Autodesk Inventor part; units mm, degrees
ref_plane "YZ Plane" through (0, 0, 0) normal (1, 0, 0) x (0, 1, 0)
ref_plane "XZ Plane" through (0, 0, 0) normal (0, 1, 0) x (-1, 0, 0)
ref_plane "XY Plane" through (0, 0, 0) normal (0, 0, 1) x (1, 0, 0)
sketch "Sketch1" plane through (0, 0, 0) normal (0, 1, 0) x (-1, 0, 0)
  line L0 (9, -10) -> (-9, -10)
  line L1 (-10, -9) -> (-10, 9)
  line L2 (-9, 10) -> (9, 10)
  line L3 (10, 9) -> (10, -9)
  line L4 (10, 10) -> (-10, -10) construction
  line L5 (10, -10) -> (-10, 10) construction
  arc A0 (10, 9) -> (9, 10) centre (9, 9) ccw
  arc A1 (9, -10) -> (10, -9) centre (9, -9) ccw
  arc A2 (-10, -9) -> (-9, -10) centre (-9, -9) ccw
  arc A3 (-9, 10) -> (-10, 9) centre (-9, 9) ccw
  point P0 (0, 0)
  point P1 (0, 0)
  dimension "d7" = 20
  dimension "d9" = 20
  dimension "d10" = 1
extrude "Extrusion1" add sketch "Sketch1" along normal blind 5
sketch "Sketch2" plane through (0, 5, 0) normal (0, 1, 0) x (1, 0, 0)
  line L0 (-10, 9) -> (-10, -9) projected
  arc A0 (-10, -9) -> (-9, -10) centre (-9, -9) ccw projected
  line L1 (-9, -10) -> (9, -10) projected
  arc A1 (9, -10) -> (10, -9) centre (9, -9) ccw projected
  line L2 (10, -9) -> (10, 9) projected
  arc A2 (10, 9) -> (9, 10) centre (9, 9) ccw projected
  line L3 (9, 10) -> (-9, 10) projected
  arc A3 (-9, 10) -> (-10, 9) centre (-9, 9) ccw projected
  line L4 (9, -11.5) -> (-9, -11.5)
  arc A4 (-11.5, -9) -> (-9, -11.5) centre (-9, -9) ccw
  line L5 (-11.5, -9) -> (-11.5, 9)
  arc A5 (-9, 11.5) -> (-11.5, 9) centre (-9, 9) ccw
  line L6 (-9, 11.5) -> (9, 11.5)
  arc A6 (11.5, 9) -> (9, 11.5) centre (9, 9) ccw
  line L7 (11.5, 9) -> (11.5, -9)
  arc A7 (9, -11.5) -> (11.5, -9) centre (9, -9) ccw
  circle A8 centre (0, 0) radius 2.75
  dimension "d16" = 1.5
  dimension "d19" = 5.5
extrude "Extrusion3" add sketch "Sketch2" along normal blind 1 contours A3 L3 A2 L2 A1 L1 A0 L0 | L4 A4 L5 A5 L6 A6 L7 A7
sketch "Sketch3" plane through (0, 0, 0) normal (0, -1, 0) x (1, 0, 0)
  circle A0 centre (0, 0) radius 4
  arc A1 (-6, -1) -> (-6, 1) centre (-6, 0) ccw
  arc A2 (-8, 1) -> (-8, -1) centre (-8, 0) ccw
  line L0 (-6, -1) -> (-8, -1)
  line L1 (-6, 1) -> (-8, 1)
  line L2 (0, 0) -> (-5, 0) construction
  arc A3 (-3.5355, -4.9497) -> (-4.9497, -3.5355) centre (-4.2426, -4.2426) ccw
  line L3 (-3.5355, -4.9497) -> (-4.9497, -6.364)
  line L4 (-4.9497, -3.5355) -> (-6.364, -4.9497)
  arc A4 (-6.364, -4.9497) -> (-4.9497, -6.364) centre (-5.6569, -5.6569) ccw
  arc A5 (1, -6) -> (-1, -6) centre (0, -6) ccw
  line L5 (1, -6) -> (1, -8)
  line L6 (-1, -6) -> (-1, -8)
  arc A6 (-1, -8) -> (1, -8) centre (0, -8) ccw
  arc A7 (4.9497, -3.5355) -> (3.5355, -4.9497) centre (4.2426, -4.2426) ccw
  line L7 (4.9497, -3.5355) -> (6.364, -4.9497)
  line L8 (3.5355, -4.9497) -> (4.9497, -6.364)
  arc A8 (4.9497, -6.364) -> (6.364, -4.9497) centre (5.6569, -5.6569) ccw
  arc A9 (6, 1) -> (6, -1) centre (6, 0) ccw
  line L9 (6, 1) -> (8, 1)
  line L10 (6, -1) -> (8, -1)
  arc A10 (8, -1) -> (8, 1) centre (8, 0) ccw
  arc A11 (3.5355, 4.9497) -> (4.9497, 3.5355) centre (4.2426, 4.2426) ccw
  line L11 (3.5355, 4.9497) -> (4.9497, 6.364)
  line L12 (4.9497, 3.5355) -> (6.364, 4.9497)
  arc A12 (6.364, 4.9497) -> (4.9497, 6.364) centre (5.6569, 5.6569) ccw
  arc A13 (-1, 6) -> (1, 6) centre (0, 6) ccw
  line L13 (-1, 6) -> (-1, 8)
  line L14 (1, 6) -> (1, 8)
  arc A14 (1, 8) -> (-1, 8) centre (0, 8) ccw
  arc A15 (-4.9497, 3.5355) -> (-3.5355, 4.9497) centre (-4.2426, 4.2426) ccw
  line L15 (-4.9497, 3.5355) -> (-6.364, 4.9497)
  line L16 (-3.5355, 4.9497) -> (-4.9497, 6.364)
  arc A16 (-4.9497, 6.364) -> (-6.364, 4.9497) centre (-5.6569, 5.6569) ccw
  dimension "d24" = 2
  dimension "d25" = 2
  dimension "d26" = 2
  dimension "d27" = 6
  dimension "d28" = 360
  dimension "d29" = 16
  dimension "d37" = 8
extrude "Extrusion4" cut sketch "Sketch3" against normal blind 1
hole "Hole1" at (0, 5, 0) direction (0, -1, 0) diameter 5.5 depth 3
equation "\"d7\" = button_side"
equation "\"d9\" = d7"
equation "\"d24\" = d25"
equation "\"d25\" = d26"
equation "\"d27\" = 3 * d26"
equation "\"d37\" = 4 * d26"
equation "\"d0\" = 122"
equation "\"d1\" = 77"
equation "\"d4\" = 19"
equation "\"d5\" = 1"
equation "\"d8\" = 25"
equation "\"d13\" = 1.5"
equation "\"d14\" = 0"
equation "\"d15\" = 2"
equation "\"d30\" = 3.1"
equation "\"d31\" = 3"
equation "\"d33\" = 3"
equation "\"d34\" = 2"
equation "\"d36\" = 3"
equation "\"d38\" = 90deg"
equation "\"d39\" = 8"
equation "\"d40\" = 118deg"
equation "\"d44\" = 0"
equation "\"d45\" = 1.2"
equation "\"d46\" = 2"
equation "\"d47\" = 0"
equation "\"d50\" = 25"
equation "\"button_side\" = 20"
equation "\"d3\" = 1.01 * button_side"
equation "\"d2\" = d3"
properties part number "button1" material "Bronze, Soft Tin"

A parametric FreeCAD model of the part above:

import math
import FreeCAD as App
import Part
import Sketcher

V = App.Vector

doc = App.newDocument("Part")
params = doc.addObject("Spreadsheet::Sheet", "Params")
for row, (alias, value) in enumerate([
    ("sketch1_radius", "1 mm"),
    ("sketch1_width", "18 mm"),
    ("pad1_length", "5 mm"),
    ("sketch2_diameter", "5.5 mm"),
    ("sketch2_radius", "2.5 mm"),
    ("sketch2_width", "18 mm"),
    ("pad2_length", "1 mm"),
    ("sketch3_diameter", "8 mm"),
    ("sketch3_radius", "1 mm"),
    ("sketch3_width", "2 mm"),
    ("pocket1_length", "1 mm"),
    ("sketch4_diameter", "5.5 mm"),
    ("hole_diameter", "5.5 mm"),
    ("hole_depth", "3 mm"),
], start=1):
    params.set(f"A{row}", alias)
    params.set(f"B{row}", "=" + value)
    params.setAlias(f"B{row}", alias)

body = doc.addObject("PartDesign::Body", "Body")

sketch1 = body.newObject("Sketcher::SketchObject", "Sketch")
sketch1.AttachmentSupport = (doc.getObject("XZ_Plane"), [""])
sketch1.MapMode = "FlatFace"
sketch1.addGeometry(Part.LineSegment(V(9, -10, 0), V(-9, -10, 0)), False)
sketch1.addGeometry(Part.ArcOfCircle(Part.Circle(V(-9, -9, 0), V(0, 0, 1), 1), math.radians(180), math.radians(270)), False)
sketch1.addGeometry(Part.LineSegment(V(-10, -9, 0), V(-10, 9, 0)), False)
sketch1.addGeometry(Part.ArcOfCircle(Part.Circle(V(-9, 9, 0), V(0, 0, 1), 1), math.radians(90), math.radians(180)), False)
sketch1.addGeometry(Part.LineSegment(V(-9, 10, 0), V(9, 10, 0)), False)
sketch1.addGeometry(Part.ArcOfCircle(Part.Circle(V(9, 9, 0), V(0, 0, 1), 1), math.radians(0), math.radians(90)), False)
sketch1.addGeometry(Part.LineSegment(V(10, 9, 0), V(10, -9, 0)), False)
sketch1.addGeometry(Part.ArcOfCircle(Part.Circle(V(9, -9, 0), V(0, 0, 1), 1), math.radians(-90), math.radians(0)), False)
sketch1.addConstraint(Sketcher.Constraint("Tangent", 0, 2, 1, 2))
sketch1.addConstraint(Sketcher.Constraint("Tangent", 1, 1, 2, 1))
sketch1.addConstraint(Sketcher.Constraint("Tangent", 2, 2, 3, 2))
sketch1.addConstraint(Sketcher.Constraint("Tangent", 3, 1, 4, 1))
sketch1.addConstraint(Sketcher.Constraint("Tangent", 4, 2, 5, 2))
sketch1.addConstraint(Sketcher.Constraint("Tangent", 5, 1, 6, 1))
sketch1.addConstraint(Sketcher.Constraint("Tangent", 6, 2, 7, 2))
sketch1.addConstraint(Sketcher.Constraint("Tangent", 7, 1, 0, 1))
sketch1.addConstraint(Sketcher.Constraint("Horizontal", 0))
sketch1.addConstraint(Sketcher.Constraint("Vertical", 2))
sketch1.addConstraint(Sketcher.Constraint("Horizontal", 4))
sketch1.addConstraint(Sketcher.Constraint("Vertical", 6))
sketch1.addConstraint(Sketcher.Constraint("Equal", 1, 3))
sketch1.addConstraint(Sketcher.Constraint("Equal", 3, 5))
sketch1.addConstraint(Sketcher.Constraint("Equal", 5, 7))
sketch1.addConstraint(Sketcher.Constraint("Symmetric", 1, 3, 5, 3, -1, 1))
sketch1.addConstraint(Sketcher.Constraint("Equal", 4, 2))
sketch1.addConstraint(Sketcher.Constraint("Radius", 1, 1.0))
sketch1.addConstraint(Sketcher.Constraint("DistanceX", 0, 2, 0, 1, 18.0))
sketch1.setExpression("Constraints[17]", "Params.sketch1_radius")
sketch1.setExpression("Constraints[18]", "Params.sketch1_width")
pad1 = body.newObject("PartDesign::Pad", "Pad")
pad1.Profile = sketch1
pad1.setExpression("Length", "Params.pad1_length")
pad1.Reversed = True

sketch2 = body.newObject("Sketcher::SketchObject", "Sketch001")
sketch2.AttachmentSupport = (doc.getObject("XZ_Plane"), [""])
sketch2.MapMode = "FlatFace"
sketch2.AttachmentOffset = App.Placement(V(0, 0, -5), App.Rotation())
sketch2.addGeometry(Part.LineSegment(V(-9, 11.5, 0), V(9, 11.5, 0)), False)
sketch2.addGeometry(Part.ArcOfCircle(Part.Circle(V(9, 9, 0), V(0, 0, 1), 2.5), math.radians(0), math.radians(90)), False)
sketch2.addGeometry(Part.LineSegment(V(11.5, 9, 0), V(11.5, -9, 0)), False)
sketch2.addGeometry(Part.ArcOfCircle(Part.Circle(V(9, -9, 0), V(0, 0, 1), 2.5), math.radians(-90), math.radians(0)), False)
sketch2.addGeometry(Part.LineSegment(V(9, -11.5, 0), V(-9, -11.5, 0)), False)
sketch2.addGeometry(Part.ArcOfCircle(Part.Circle(V(-9, -9, 0), V(0, 0, 1), 2.5), math.radians(180), math.radians(270)), False)
sketch2.addGeometry(Part.LineSegment(V(-11.5, -9, 0), V(-11.5, 9, 0)), False)
sketch2.addGeometry(Part.ArcOfCircle(Part.Circle(V(-9, 9, 0), V(0, 0, 1), 2.5), math.radians(90), math.radians(180)), False)
sketch2.addGeometry(Part.Circle(V(0, 0, 0), V(0, 0, 1), 2.75), False)
sketch2.addConstraint(Sketcher.Constraint("Tangent", 0, 2, 1, 2))
sketch2.addConstraint(Sketcher.Constraint("Tangent", 1, 1, 2, 1))
sketch2.addConstraint(Sketcher.Constraint("Tangent", 2, 2, 3, 2))
sketch2.addConstraint(Sketcher.Constraint("Tangent", 3, 1, 4, 1))
sketch2.addConstraint(Sketcher.Constraint("Tangent", 4, 2, 5, 2))
sketch2.addConstraint(Sketcher.Constraint("Tangent", 5, 1, 6, 1))
sketch2.addConstraint(Sketcher.Constraint("Tangent", 6, 2, 7, 2))
sketch2.addConstraint(Sketcher.Constraint("Tangent", 7, 1, 0, 1))
sketch2.addConstraint(Sketcher.Constraint("Horizontal", 0))
sketch2.addConstraint(Sketcher.Constraint("Vertical", 2))
sketch2.addConstraint(Sketcher.Constraint("Horizontal", 4))
sketch2.addConstraint(Sketcher.Constraint("Vertical", 6))
sketch2.addConstraint(Sketcher.Constraint("Coincident", 8, 3, -1, 1))
sketch2.addConstraint(Sketcher.Constraint("Equal", 1, 3))
sketch2.addConstraint(Sketcher.Constraint("Equal", 3, 5))
sketch2.addConstraint(Sketcher.Constraint("Equal", 5, 7))
sketch2.addConstraint(Sketcher.Constraint("Symmetric", 1, 3, 5, 3, -1, 1))
sketch2.addConstraint(Sketcher.Constraint("Equal", 4, 2))
sketch2.addConstraint(Sketcher.Constraint("Diameter", 8, 5.5))
sketch2.addConstraint(Sketcher.Constraint("Radius", 1, 2.5))
sketch2.addConstraint(Sketcher.Constraint("DistanceX", 0, 1, 0, 2, 18.0))
sketch2.setExpression("Constraints[18]", "Params.sketch2_diameter")
sketch2.setExpression("Constraints[19]", "Params.sketch2_radius")
sketch2.setExpression("Constraints[20]", "Params.sketch2_width")
pad2 = body.newObject("PartDesign::Pad", "Pad001")
pad2.Profile = sketch2
pad2.setExpression("Length", "Params.pad2_length")
pad2.Reversed = True

sketch3 = body.newObject("Sketcher::SketchObject", "Sketch002")
sketch3.AttachmentSupport = (doc.getObject("XZ_Plane"), [""])
sketch3.MapMode = "FlatFace"
sketch3.addGeometry(Part.Circle(V(0, 0, 0), V(0, 0, 1), 4), False)
sketch3.addGeometry(Part.LineSegment(V(-8, -1, 0), V(-6, -1, 0)), False)
sketch3.addGeometry(Part.ArcOfCircle(Part.Circle(V(-6, 0, 0), V(0, 0, 1), 1), math.radians(-90), math.radians(90)), False)
sketch3.addGeometry(Part.LineSegment(V(-6, 1, 0), V(-8, 1, 0)), False)
sketch3.addGeometry(Part.ArcOfCircle(Part.Circle(V(-8, 0, 0), V(0, 0, 1), 1), math.radians(90), math.radians(270)), False)
sketch3.addGeometry(Part.LineSegment(V(-4.9497, -6.364, 0), V(-3.5355, -4.9497, 0)), False)
sketch3.addGeometry(Part.ArcOfCircle(Part.Circle(V(-4.2426, -4.2426, 0), V(0, 0, 1), 0.99999), math.radians(-45), math.radians(135)), False)
sketch3.addGeometry(Part.LineSegment(V(-4.9497, -3.5355, 0), V(-6.364, -4.9497, 0)), False)
sketch3.addGeometry(Part.ArcOfCircle(Part.Circle(V(-5.6569, -5.6569, 0), V(0, 0, 1), 1.000061), math.radians(134.995949), math.radians(315.004051)), False)
sketch3.addGeometry(Part.LineSegment(V(1, -8, 0), V(1, -6, 0)), False)
sketch3.addGeometry(Part.ArcOfCircle(Part.Circle(V(0, -6, 0), V(0, 0, 1), 1), math.radians(0), math.radians(180)), False)
sketch3.addGeometry(Part.LineSegment(V(-1, -6, 0), V(-1, -8, 0)), False)
sketch3.addGeometry(Part.ArcOfCircle(Part.Circle(V(0, -8, 0), V(0, 0, 1), 1), math.radians(180), math.radians(360)), False)
sketch3.addGeometry(Part.LineSegment(V(6.364, -4.9497, 0), V(4.9497, -3.5355, 0)), False)
sketch3.addGeometry(Part.ArcOfCircle(Part.Circle(V(4.2426, -4.2426, 0), V(0, 0, 1), 0.99999), math.radians(45), math.radians(225)), False)
sketch3.addGeometry(Part.LineSegment(V(3.5355, -4.9497, 0), V(4.9497, -6.364, 0)), False)
sketch3.addGeometry(Part.ArcOfCircle(Part.Circle(V(5.6569, -5.6569, 0), V(0, 0, 1), 1.000061), math.radians(-135.004051), math.radians(45.004051)), False)
sketch3.addGeometry(Part.LineSegment(V(8, 1, 0), V(6, 1, 0)), False)
sketch3.addGeometry(Part.ArcOfCircle(Part.Circle(V(6, 0, 0), V(0, 0, 1), 1), math.radians(90), math.radians(270)), False)
sketch3.addGeometry(Part.LineSegment(V(6, -1, 0), V(8, -1, 0)), False)
sketch3.addGeometry(Part.ArcOfCircle(Part.Circle(V(8, 0, 0), V(0, 0, 1), 1), math.radians(-90), math.radians(90)), False)
sketch3.addGeometry(Part.LineSegment(V(4.9497, 6.364, 0), V(3.5355, 4.9497, 0)), False)
sketch3.addGeometry(Part.ArcOfCircle(Part.Circle(V(4.2426, 4.2426, 0), V(0, 0, 1), 0.99999), math.radians(135), math.radians(315)), False)
sketch3.addGeometry(Part.LineSegment(V(4.9497, 3.5355, 0), V(6.364, 4.9497, 0)), False)
sketch3.addGeometry(Part.ArcOfCircle(Part.Circle(V(5.6569, 5.6569, 0), V(0, 0, 1), 1.000061), math.radians(-45.004051), math.radians(135.004051)), False)
sketch3.addGeometry(Part.LineSegment(V(-1, 8, 0), V(-1, 6, 0)), False)
sketch3.addGeometry(Part.ArcOfCircle(Part.Circle(V(0, 6, 0), V(0, 0, 1), 1), math.radians(180), math.radians(360)), False)
sketch3.addGeometry(Part.LineSegment(V(1, 6, 0), V(1, 8, 0)), False)
sketch3.addGeometry(Part.ArcOfCircle(Part.Circle(V(0, 8, 0), V(0, 0, 1), 1), math.radians(0), math.radians(180)), False)
sketch3.addGeometry(Part.LineSegment(V(-6.364, 4.9497, 0), V(-4.9497, 3.5355, 0)), False)
sketch3.addGeometry(Part.ArcOfCircle(Part.Circle(V(-4.2426, 4.2426, 0), V(0, 0, 1), 0.99999), math.radians(-135), math.radians(45)), False)
sketch3.addGeometry(Part.LineSegment(V(-3.5355, 4.9497, 0), V(-4.9497, 6.364, 0)), False)
sketch3.addGeometry(Part.ArcOfCircle(Part.Circle(V(-5.6569, 5.6569, 0), V(0, 0, 1), 1.000061), math.radians(44.995949), math.radians(225.004051)), False)
sketch3.addConstraint(Sketcher.Constraint("Tangent", 1, 2, 2, 1))
sketch3.addConstraint(Sketcher.Constraint("Tangent", 2, 2, 3, 1))
sketch3.addConstraint(Sketcher.Constraint("Tangent", 3, 2, 4, 1))
sketch3.addConstraint(Sketcher.Constraint("Tangent", 4, 2, 1, 1))
sketch3.addConstraint(Sketcher.Constraint("Tangent", 5, 2, 6, 1))
sketch3.addConstraint(Sketcher.Constraint("Tangent", 6, 2, 7, 1))
sketch3.addConstraint(Sketcher.Constraint("Tangent", 7, 2, 8, 1))
sketch3.addConstraint(Sketcher.Constraint("Tangent", 8, 2, 5, 1))
sketch3.addConstraint(Sketcher.Constraint("Tangent", 9, 2, 10, 1))
sketch3.addConstraint(Sketcher.Constraint("Tangent", 10, 2, 11, 1))
sketch3.addConstraint(Sketcher.Constraint("Tangent", 11, 2, 12, 1))
sketch3.addConstraint(Sketcher.Constraint("Tangent", 12, 2, 9, 1))
sketch3.addConstraint(Sketcher.Constraint("Tangent", 13, 2, 14, 1))
sketch3.addConstraint(Sketcher.Constraint("Tangent", 14, 2, 15, 1))
sketch3.addConstraint(Sketcher.Constraint("Tangent", 15, 2, 16, 1))
sketch3.addConstraint(Sketcher.Constraint("Tangent", 16, 2, 13, 1))
sketch3.addConstraint(Sketcher.Constraint("Tangent", 17, 2, 18, 1))
sketch3.addConstraint(Sketcher.Constraint("Tangent", 18, 2, 19, 1))
sketch3.addConstraint(Sketcher.Constraint("Tangent", 19, 2, 20, 1))
sketch3.addConstraint(Sketcher.Constraint("Tangent", 20, 2, 17, 1))
sketch3.addConstraint(Sketcher.Constraint("Tangent", 21, 2, 22, 1))
sketch3.addConstraint(Sketcher.Constraint("Tangent", 22, 2, 23, 1))
sketch3.addConstraint(Sketcher.Constraint("Tangent", 23, 2, 24, 1))
sketch3.addConstraint(Sketcher.Constraint("Tangent", 24, 2, 21, 1))
sketch3.addConstraint(Sketcher.Constraint("Tangent", 25, 2, 26, 1))
sketch3.addConstraint(Sketcher.Constraint("Tangent", 26, 2, 27, 1))
sketch3.addConstraint(Sketcher.Constraint("Tangent", 27, 2, 28, 1))
sketch3.addConstraint(Sketcher.Constraint("Tangent", 28, 2, 25, 1))
sketch3.addConstraint(Sketcher.Constraint("Tangent", 29, 2, 30, 1))
sketch3.addConstraint(Sketcher.Constraint("Tangent", 30, 2, 31, 1))
sketch3.addConstraint(Sketcher.Constraint("Tangent", 31, 2, 32, 1))
sketch3.addConstraint(Sketcher.Constraint("Tangent", 32, 2, 29, 1))
sketch3.addConstraint(Sketcher.Constraint("Horizontal", 1))
sketch3.addConstraint(Sketcher.Constraint("Horizontal", 3))
sketch3.addConstraint(Sketcher.Constraint("Vertical", 9))
sketch3.addConstraint(Sketcher.Constraint("Vertical", 11))
sketch3.addConstraint(Sketcher.Constraint("Horizontal", 17))
sketch3.addConstraint(Sketcher.Constraint("Horizontal", 19))
sketch3.addConstraint(Sketcher.Constraint("Vertical", 25))
sketch3.addConstraint(Sketcher.Constraint("Vertical", 27))
sketch3.addConstraint(Sketcher.Constraint("Coincident", 0, 3, -1, 1))
sketch3.addConstraint(Sketcher.Constraint("Equal", 4, 6))
sketch3.addConstraint(Sketcher.Constraint("Equal", 6, 8))
sketch3.addConstraint(Sketcher.Constraint("Equal", 8, 10))
sketch3.addConstraint(Sketcher.Constraint("Equal", 12, 14))
sketch3.addConstraint(Sketcher.Constraint("Equal", 14, 16))
sketch3.addConstraint(Sketcher.Constraint("Equal", 16, 18))
sketch3.addConstraint(Sketcher.Constraint("Equal", 20, 22))
sketch3.addConstraint(Sketcher.Constraint("Equal", 22, 24))
sketch3.addConstraint(Sketcher.Constraint("Equal", 24, 26))
sketch3.addConstraint(Sketcher.Constraint("Equal", 28, 30))
sketch3.addConstraint(Sketcher.Constraint("Equal", 30, 32))
sketch3.addConstraint(Sketcher.Constraint("Symmetric", 2, 3, 18, 3, -1, 1))
sketch3.addConstraint(Sketcher.Constraint("Symmetric", 6, 3, 22, 3, -1, 1))
sketch3.addConstraint(Sketcher.Constraint("Symmetric", 8, 3, 24, 3, -1, 1))
sketch3.addConstraint(Sketcher.Constraint("Symmetric", 10, 3, 26, 3, -1, 1))
sketch3.addConstraint(Sketcher.Constraint("Symmetric", 14, 3, 30, 3, -1, 1))
sketch3.addConstraint(Sketcher.Constraint("Symmetric", 16, 3, 32, 3, -1, 1))
sketch3.addConstraint(Sketcher.Constraint("Symmetric", 6, 3, 14, 3, -2))
sketch3.addConstraint(Sketcher.Constraint("Symmetric", 8, 3, 16, 3, -2))
sketch3.addConstraint(Sketcher.Constraint("Symmetric", 4, 3, 20, 3, -2))
sketch3.addConstraint(Sketcher.Constraint("Symmetric", 12, 3, 28, 3, -1))
sketch3.addConstraint(Sketcher.Constraint("Perpendicular", 7, 13))
sketch3.addConstraint(Sketcher.Constraint("Horizontal", 5, 2, 7, 2))
sketch3.addConstraint(Sketcher.Constraint("Equal", 19, 9))
sketch3.addConstraint(Sketcher.Constraint("Diameter", 0, 8.0))
sketch3.addConstraint(Sketcher.Constraint("Radius", 2, 1.0))
sketch3.addConstraint(Sketcher.Constraint("DistanceX", 1, 1, 1, 2, 2.0))
sketch3.addConstraint(Sketcher.Constraint("DistanceX", 2, 3, -1, 1, 6.0))
sketch3.addConstraint(Sketcher.Constraint("DistanceY", 10, 3, -1, 1, 6.0))
sketch3.addConstraint(Sketcher.Constraint("DistanceX", 8, 3, -1, 1, 5.657))
sketch3.addConstraint(Sketcher.Constraint("DistanceY", 8, 3, -1, 1, 5.657))
sketch3.setExpression("Constraints[65]", "Params.sketch3_diameter")
sketch3.setExpression("Constraints[66]", "Params.sketch3_radius")
sketch3.setExpression("Constraints[67]", "Params.sketch3_width")
pocket1 = body.newObject("PartDesign::Pocket", "Pocket")
pocket1.Profile = sketch3
pocket1.setExpression("Length", "Params.pocket1_length")

sketch4 = body.newObject("Sketcher::SketchObject", "Sketch003")
sketch4.AttachmentSupport = (doc.getObject("XZ_Plane"), [""])
sketch4.MapMode = "FlatFace"
sketch4.AttachmentOffset = App.Placement(V(0, 0, -5), App.Rotation())
sketch4.addGeometry(Part.Circle(V(0, 0, 0), V(0, 0, 1), 2.75), False)
sketch4.addConstraint(Sketcher.Constraint("Coincident", 0, 3, -1, 1))
sketch4.addConstraint(Sketcher.Constraint("Diameter", 0, 5.5))
sketch4.setExpression("Constraints[1]", "Params.sketch4_diameter")
doc.recompute()
hole = body.newObject("PartDesign::Hole", "Hole")
hole.Profile = sketch4
hole.ThreadType = "None"
hole.setExpression("Diameter", "Params.hole_diameter")
hole.DepthType = "Dimension"
hole.setExpression("Depth", "Params.hole_depth")
hole.DrillPoint = "Flat"
hole.Reversed = True

doc.recompute()
